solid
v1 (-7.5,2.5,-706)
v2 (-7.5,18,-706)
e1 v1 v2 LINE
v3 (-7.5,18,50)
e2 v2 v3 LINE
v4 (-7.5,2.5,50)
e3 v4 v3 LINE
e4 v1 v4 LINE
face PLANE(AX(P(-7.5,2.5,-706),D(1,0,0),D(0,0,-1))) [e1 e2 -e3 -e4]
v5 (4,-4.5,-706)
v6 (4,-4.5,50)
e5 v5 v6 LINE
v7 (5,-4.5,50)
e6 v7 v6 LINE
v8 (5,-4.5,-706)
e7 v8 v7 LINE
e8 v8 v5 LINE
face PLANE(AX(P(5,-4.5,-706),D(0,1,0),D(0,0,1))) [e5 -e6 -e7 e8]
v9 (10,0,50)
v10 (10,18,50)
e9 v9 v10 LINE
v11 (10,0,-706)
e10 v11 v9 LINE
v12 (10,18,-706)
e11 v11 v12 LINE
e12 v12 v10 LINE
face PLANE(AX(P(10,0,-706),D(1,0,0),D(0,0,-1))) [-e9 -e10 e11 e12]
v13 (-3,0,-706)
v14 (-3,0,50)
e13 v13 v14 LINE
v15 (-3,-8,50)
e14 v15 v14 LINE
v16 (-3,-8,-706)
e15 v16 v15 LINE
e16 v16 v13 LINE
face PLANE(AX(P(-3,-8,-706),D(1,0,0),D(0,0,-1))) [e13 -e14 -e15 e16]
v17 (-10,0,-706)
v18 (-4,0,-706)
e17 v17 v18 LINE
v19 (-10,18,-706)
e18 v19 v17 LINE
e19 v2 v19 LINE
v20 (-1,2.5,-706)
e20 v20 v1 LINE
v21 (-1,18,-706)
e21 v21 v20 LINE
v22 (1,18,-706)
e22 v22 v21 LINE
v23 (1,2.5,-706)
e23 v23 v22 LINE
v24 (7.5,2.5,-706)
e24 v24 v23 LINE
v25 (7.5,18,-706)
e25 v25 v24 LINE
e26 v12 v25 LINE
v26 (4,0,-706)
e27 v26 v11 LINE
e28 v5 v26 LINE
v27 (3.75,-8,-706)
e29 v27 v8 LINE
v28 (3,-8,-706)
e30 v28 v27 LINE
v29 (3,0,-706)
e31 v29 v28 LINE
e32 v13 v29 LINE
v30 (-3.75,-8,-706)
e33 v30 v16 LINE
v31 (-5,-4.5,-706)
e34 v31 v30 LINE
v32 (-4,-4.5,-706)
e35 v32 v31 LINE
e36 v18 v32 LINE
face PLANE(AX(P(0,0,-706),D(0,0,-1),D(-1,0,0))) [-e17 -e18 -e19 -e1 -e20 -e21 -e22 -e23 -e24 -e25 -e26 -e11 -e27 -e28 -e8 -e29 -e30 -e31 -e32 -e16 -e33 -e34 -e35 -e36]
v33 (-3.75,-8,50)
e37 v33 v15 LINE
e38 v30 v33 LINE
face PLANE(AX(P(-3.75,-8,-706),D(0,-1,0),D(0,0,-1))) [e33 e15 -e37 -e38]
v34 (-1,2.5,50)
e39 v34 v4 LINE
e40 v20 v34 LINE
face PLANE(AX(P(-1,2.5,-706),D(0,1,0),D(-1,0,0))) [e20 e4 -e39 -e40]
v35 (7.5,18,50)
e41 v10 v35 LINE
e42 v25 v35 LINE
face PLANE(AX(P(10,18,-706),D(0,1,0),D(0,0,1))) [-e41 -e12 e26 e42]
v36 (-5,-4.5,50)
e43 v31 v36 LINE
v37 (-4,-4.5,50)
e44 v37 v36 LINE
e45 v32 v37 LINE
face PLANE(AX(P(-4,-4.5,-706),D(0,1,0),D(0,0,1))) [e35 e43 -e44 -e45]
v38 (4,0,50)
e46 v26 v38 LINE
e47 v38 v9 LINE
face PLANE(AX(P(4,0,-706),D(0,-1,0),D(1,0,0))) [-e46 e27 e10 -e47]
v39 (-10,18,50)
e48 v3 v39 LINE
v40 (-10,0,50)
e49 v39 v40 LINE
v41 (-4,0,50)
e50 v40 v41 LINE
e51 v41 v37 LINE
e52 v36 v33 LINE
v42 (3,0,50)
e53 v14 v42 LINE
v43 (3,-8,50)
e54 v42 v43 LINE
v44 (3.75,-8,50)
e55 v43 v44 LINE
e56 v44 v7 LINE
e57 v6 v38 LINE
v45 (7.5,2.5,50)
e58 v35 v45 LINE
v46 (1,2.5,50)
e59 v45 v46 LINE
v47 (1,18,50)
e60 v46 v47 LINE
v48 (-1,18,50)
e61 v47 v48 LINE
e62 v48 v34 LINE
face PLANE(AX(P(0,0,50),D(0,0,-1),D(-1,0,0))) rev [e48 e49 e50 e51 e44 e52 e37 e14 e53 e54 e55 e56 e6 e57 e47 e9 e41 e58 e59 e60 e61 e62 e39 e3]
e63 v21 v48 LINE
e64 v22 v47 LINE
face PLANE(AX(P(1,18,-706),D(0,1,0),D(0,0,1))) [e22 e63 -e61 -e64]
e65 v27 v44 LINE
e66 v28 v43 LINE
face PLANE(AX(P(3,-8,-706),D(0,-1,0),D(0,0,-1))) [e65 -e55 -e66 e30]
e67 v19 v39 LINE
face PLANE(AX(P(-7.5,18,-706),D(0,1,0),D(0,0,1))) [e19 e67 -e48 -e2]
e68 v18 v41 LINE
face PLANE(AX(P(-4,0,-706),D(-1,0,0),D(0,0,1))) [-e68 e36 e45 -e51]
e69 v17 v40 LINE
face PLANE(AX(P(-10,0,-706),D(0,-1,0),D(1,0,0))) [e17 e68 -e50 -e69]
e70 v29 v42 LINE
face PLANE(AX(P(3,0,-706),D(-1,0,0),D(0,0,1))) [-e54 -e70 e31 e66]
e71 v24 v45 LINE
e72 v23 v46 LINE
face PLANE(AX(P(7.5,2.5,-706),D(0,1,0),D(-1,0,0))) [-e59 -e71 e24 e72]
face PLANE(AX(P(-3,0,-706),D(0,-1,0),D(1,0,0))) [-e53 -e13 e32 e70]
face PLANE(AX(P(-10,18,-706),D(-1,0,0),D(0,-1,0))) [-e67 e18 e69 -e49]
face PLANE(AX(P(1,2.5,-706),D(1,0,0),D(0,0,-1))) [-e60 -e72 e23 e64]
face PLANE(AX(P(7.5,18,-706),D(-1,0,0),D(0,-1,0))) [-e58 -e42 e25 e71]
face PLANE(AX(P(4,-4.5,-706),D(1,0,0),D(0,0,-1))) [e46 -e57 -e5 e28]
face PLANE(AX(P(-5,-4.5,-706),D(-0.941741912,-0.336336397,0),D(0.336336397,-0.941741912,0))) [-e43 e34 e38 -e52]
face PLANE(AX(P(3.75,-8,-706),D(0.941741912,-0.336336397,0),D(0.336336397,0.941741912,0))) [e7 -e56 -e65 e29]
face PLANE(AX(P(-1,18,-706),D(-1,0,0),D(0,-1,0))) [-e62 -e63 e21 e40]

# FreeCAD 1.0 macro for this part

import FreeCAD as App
import Part
import Sketcher

V = App.Vector

doc = App.newDocument("Part")
body = doc.addObject("PartDesign::Body", "Body")

# Sketch on XY plane
sketch1 = body.newObject("Sketcher::SketchObject", "Sketch")
sketch1.AttachmentSupport = (doc.getObject("XY_Plane"), [""])
sketch1.MapMode = "FlatFace"
sketch1.AttachmentOffset = App.Placement(V(0, 0, 50), App.Rotation())
sketch1.addGeometry(Part.LineSegment(V(-1, 2.5, 0), V(-7.5, 2.5, 0)), False)
sketch1.addGeometry(Part.LineSegment(V(-7.5, 2.5, 0), V(-7.5, 18, 0)), False)
sketch1.addGeometry(Part.LineSegment(V(-7.5, 18, 0), V(-10, 18, 0)), False)
sketch1.addGeometry(Part.LineSegment(V(-10, 18, 0), V(-10, 0, 0)), False)
sketch1.addGeometry(Part.LineSegment(V(-10, 0, 0), V(-4, 0, 0)), False)
sketch1.addGeometry(Part.LineSegment(V(-4, 0, 0), V(-4, -4.5, 0)), False)
sketch1.addGeometry(Part.LineSegment(V(-4, -4.5, 0), V(-5, -4.5, 0)), False)
sketch1.addGeometry(Part.LineSegment(V(-5, -4.5, 0), V(-3.8, -8, 0)), False)
sketch1.addGeometry(Part.LineSegment(V(-3.8, -8, 0), V(-3, -8, 0)), False)
sketch1.addGeometry(Part.LineSegment(V(-3, -8, 0), V(-3, 0, 0)), False)
sketch1.addGeometry(Part.LineSegment(V(-3, 0, 0), V(3, 0, 0)), False)
sketch1.addGeometry(Part.LineSegment(V(3, 0, 0), V(3, -8, 0)), False)
sketch1.addGeometry(Part.LineSegment(V(3, -8, 0), V(3.8, -8, 0)), False)
sketch1.addGeometry(Part.LineSegment(V(3.8, -8, 0), V(5, -4.5, 0)), False)
sketch1.addGeometry(Part.LineSegment(V(5, -4.5, 0), V(4, -4.5, 0)), False)
sketch1.addGeometry(Part.LineSegment(V(4, -4.5, 0), V(4, 0, 0)), False)
sketch1.addGeometry(Part.LineSegment(V(4, 0, 0), V(10, 0, 0)), False)
sketch1.addGeometry(Part.LineSegment(V(10, 0, 0), V(10, 18, 0)), False)
sketch1.addGeometry(Part.LineSegment(V(10, 18, 0), V(7.5, 18, 0)), False)
sketch1.addGeometry(Part.LineSegment(V(7.5, 18, 0), V(7.5, 2.5, 0)), False)
sketch1.addGeometry(Part.LineSegment(V(7.5, 2.5, 0), V(1, 2.5, 0)), False)
sketch1.addGeometry(Part.LineSegment(V(1, 2.5, 0), V(1, 18, 0)), False)
sketch1.addGeometry(Part.LineSegment(V(1, 18, 0), V(-1, 18, 0)), False)
sketch1.addGeometry(Part.LineSegment(V(-1, 18, 0), V(-1, 2.5, 0)), False)
sketch1.addConstraint(Sketcher.Constraint("Coincident", 0, 2, 1, 1))
sketch1.addConstraint(Sketcher.Constraint("Coincident", 1, 2, 2, 1))
sketch1.addConstraint(Sketcher.Constraint("Coincident", 2, 2, 3, 1))
sketch1.addConstraint(Sketcher.Constraint("Coincident", 3, 2, 4, 1))
sketch1.addConstraint(Sketcher.Constraint("Coincident", 4, 2, 5, 1))
sketch1.addConstraint(Sketcher.Constraint("Coincident", 5, 2, 6, 1))
sketch1.addConstraint(Sketcher.Constraint("Coincident", 6, 2, 7, 1))
sketch1.addConstraint(Sketcher.Constraint("Coincident", 7, 2, 8, 1))
sketch1.addConstraint(Sketcher.Constraint("Coincident", 8, 2, 9, 1))
sketch1.addConstraint(Sketcher.Constraint("Coincident", 9, 2, 10, 1))
sketch1.addConstraint(Sketcher.Constraint("Coincident", 10, 2, 11, 1))
sketch1.addConstraint(Sketcher.Constraint("Coincident", 11, 2, 12, 1))
sketch1.addConstraint(Sketcher.Constraint("Coincident", 12, 2, 13, 1))
sketch1.addConstraint(Sketcher.Constraint("Coincident", 13, 2, 14, 1))
sketch1.addConstraint(Sketcher.Constraint("Coincident", 14, 2, 15, 1))
sketch1.addConstraint(Sketcher.Constraint("Coincident", 15, 2, 16, 1))
sketch1.addConstraint(Sketcher.Constraint("Coincident", 16, 2, 17, 1))
sketch1.addConstraint(Sketcher.Constraint("Coincident", 17, 2, 18, 1))
sketch1.addConstraint(Sketcher.Constraint("Coincident", 18, 2, 19, 1))
sketch1.addConstraint(Sketcher.Constraint("Coincident", 19, 2, 20, 1))
sketch1.addConstraint(Sketcher.Constraint("Coincident", 20, 2, 21, 1))
sketch1.addConstraint(Sketcher.Constraint("Coincident", 21, 2, 22, 1))
sketch1.addConstraint(Sketcher.Constraint("Coincident", 22, 2, 23, 1))
sketch1.addConstraint(Sketcher.Constraint("Coincident", 23, 2, 0, 1))
sketch1.addConstraint(Sketcher.Constraint("Horizontal", 0))
sketch1.addConstraint(Sketcher.Constraint("Vertical", 1))
sketch1.addConstraint(Sketcher.Constraint("Horizontal", 2))
sketch1.addConstraint(Sketcher.Constraint("Vertical", 3))
sketch1.addConstraint(Sketcher.Constraint("Horizontal", 4))
sketch1.addConstraint(Sketcher.Constraint("Vertical", 5))
sketch1.addConstraint(Sketcher.Constraint("Horizontal", 6))
sketch1.addConstraint(Sketcher.Constraint("Horizontal", 8))
sketch1.addConstraint(Sketcher.Constraint("Vertical", 9))
sketch1.addConstraint(Sketcher.Constraint("Horizontal", 10))
sketch1.addConstraint(Sketcher.Constraint("Vertical", 11))
sketch1.addConstraint(Sketcher.Constraint("Horizontal", 12))
sketch1.addConstraint(Sketcher.Constraint("Horizontal", 14))
sketch1.addConstraint(Sketcher.Constraint("Vertical", 15))
sketch1.addConstraint(Sketcher.Constraint("Horizontal", 16))
sketch1.addConstraint(Sketcher.Constraint("Vertical", 17))
sketch1.addConstraint(Sketcher.Constraint("Horizontal", 18))
sketch1.addConstraint(Sketcher.Constraint("Vertical", 19))
sketch1.addConstraint(Sketcher.Constraint("Horizontal", 20))
sketch1.addConstraint(Sketcher.Constraint("Vertical", 21))
sketch1.addConstraint(Sketcher.Constraint("Horizontal", 22))
sketch1.addConstraint(Sketcher.Constraint("Vertical", 23))
sketch1.addConstraint(Sketcher.Constraint("Symmetric", 9, 2, 10, 2, -1, 1))
sketch1.addConstraint(Sketcher.Constraint("Symmetric", 4, 2, 15, 2, -1, 1))
sketch1.addConstraint(Sketcher.Constraint("Symmetric", 7, 2, 12, 2, -2))
sketch1.addConstraint(Sketcher.Constraint("Symmetric", 6, 2, 13, 2, -2))
sketch1.addConstraint(Sketcher.Constraint("Symmetric", 3, 2, 16, 2, -2))
sketch1.addConstraint(Sketcher.Constraint("Symmetric", 1, 2, 18, 2, -2))
sketch1.addConstraint(Sketcher.Constraint("Symmetric", 20, 2, 23, 2, -2))
sketch1.addConstraint(Sketcher.Constraint("Horizontal", 18, 2, 21, 2))
sketch1.addConstraint(Sketcher.Constraint("Equal", 4, 10))
sketch1.addConstraint(Sketcher.Constraint("DistanceX", 4, 1, 4, 2, 6.0))
sketch1.addConstraint(Sketcher.Constraint("DistanceX", 6, 2, 6, 1, 1.0))
sketch1.addConstraint(Sketcher.Constraint("DistanceX", 22, 2, 22, 1, 2.0))
sketch1.addConstraint(Sketcher.Constraint("DistanceY", 3, 2, 3, 1, 18.0))
sketch1.addConstraint(Sketcher.Constraint("DistanceY", 9, 1, 9, 2, 8.0))
sketch1.addConstraint(Sketcher.Constraint("DistanceX", 0, 2, 0, 1, 6.5))
sketch1.addConstraint(Sketcher.Constraint("DistanceX", 2, 2, 2, 1, 2.5))
sketch1.addConstraint(Sketcher.Constraint("DistanceY", 1, 1, 1, 2, 15.5))
sketch1.addConstraint(Sketcher.Constraint("DistanceY", 5, 2, 5, 1, 4.5))
sketch1.addConstraint(Sketcher.Constraint("DistanceX", 8, 1, 8, 2, 0.75))
pad1 = body.newObject("PartDesign::Pad", "Pad")
pad1.Profile = sketch1
pad1.Length = 756
pad1.Reversed = True

doc.recompute()
